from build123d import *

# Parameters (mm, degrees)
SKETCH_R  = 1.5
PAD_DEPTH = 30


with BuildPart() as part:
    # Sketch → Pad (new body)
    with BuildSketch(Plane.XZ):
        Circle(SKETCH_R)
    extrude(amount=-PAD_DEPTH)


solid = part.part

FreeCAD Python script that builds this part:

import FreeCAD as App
import Part
import Sketcher
from FreeCAD import Vector

doc = App.newDocument("Part")
params = doc.addObject("Spreadsheet::Sheet", "Params")
for row, (alias, value) in enumerate([
    ("sketch1_diameter", "3 mm"),
    ("pad1_length", "30 mm"),
], start=1):
    params.set(f"A{row}", alias)
    params.set(f"B{row}", "=" + value)
    params.setAlias(f"B{row}", alias)

body = doc.addObject("PartDesign::Body", "Body")

# Sketch on XZ plane
sketch1 = body.newObject("Sketcher::SketchObject", "Sketch")
sketch1.AttachmentSupport = (doc.getObject("XZ_Plane"), [""])
sketch1.MapMode = "FlatFace"
sketch1.addGeometry(Part.Circle(Vector(0, 0, 0), Vector(0, 0, 1), 1.5), False)
sketch1.addConstraint(Sketcher.Constraint("Coincident", 0, 3, -1, 1))
sketch1.addConstraint(Sketcher.Constraint("Diameter", 0, 3.0))
sketch1.setExpression("Constraints[1]", "Params.sketch1_diameter")
pad1 = body.newObject("PartDesign::Pad", "Pad")
pad1.Profile = sketch1
pad1.setExpression("Length", "Params.pad1_length")
pad1.Reversed = True

doc.recompute()
